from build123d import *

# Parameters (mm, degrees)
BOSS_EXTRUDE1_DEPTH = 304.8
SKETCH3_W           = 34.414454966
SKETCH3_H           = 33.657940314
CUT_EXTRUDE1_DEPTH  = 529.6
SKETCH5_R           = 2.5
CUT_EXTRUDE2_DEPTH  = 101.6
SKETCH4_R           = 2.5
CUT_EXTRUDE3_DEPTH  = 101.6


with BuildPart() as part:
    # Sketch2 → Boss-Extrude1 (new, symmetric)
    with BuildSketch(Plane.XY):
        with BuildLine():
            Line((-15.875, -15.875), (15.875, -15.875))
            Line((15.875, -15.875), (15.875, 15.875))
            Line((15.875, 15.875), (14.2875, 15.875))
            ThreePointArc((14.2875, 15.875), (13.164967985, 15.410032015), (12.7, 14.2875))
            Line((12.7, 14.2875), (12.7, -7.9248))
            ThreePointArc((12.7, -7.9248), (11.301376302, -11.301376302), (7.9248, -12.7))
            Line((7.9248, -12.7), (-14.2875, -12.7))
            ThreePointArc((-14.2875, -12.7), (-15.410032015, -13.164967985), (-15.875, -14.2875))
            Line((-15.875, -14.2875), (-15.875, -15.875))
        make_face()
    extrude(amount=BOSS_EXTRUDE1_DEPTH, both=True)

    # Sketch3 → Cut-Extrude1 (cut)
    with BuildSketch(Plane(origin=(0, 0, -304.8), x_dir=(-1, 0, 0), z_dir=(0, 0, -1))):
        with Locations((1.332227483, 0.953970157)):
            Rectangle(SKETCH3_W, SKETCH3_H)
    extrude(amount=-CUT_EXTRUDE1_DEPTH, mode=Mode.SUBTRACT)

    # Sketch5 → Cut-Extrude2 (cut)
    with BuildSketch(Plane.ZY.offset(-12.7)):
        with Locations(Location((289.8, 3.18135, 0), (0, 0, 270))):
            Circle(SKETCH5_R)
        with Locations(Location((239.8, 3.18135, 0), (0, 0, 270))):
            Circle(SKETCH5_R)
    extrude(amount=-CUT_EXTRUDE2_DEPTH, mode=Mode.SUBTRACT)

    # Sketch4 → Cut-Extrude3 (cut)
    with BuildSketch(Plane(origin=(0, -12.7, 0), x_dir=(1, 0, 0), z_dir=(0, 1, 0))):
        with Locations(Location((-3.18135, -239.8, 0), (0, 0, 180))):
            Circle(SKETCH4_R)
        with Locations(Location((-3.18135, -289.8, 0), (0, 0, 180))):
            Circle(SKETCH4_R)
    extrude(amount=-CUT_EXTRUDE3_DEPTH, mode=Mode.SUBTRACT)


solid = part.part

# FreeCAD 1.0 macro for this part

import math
import FreeCAD as App
import Part
import Sketcher
from FreeCAD import Vector
Q = App.Units.Quantity

doc = App.newDocument("Part")
body = doc.addObject("PartDesign::Body", "Body")

# Sketch on XY plane
sketch1 = body.newObject("Sketcher::SketchObject", "Sketch")
sketch1.AttachmentSupport = (doc.getObject("XY_Plane"), [""])
sketch1.MapMode = "FlatFace"
sketch1.addGeometry([
    Part.LineSegment(Vector(-15.9, -15.9, 0), Vector(15.9, -15.9, 0)),  # 0
    Part.LineSegment(Vector(15.9, -15.9, 0), Vector(15.9, 15.9, 0)),  # 1
    Part.LineSegment(Vector(15.9, 15.9, 0), Vector(14.3, 15.9, 0)),  # 2
    Part.ArcOfCircle(Part.Circle(Vector(14.3, 14.3, 0), Vector(0, 0, 1), 1.6), math.radians(90), math.radians(180)),  # 3
    Part.LineSegment(Vector(12.7, 14.3, 0), Vector(12.7, -7.9, 0)),  # 4
    Part.ArcOfCircle(Part.Circle(Vector(7.9, -7.9, 0), Vector(0, 0, 1), 4.8), math.radians(-90), math.radians(0)),  # 5
    Part.LineSegment(Vector(7.9, -12.7, 0), Vector(-14.3, -12.7, 0)),  # 6
    Part.ArcOfCircle(Part.Circle(Vector(-14.3, -14.3, 0), Vector(0, 0, 1), 1.6), math.radians(90), math.radians(180)),  # 7
    Part.LineSegment(Vector(-15.9, -14.3, 0), Vector(-15.9, -15.9, 0)),  # 8
], False)
sketch1.addConstraint([
    Sketcher.Constraint("Coincident", 0, 2, 1, 1),
    Sketcher.Constraint("Coincident", 1, 2, 2, 1),
    Sketcher.Constraint("Tangent", 2, 2, 3, 1),
    Sketcher.Constraint("Tangent", 3, 2, 4, 1),
    Sketcher.Constraint("Tangent", 4, 2, 5, 2),
    Sketcher.Constraint("Tangent", 5, 1, 6, 1),
    Sketcher.Constraint("Tangent", 6, 2, 7, 1),
    Sketcher.Constraint("Tangent", 7, 2, 8, 1),
    Sketcher.Constraint("Coincident", 8, 2, 0, 1),
    Sketcher.Constraint("Horizontal", 0),
    Sketcher.Constraint("Vertical", 1),
    Sketcher.Constraint("Horizontal", 2),
    Sketcher.Constraint("Vertical", 4),
    Sketcher.Constraint("Horizontal", 6),
    Sketcher.Constraint("Vertical", 8),
    Sketcher.Constraint("Equal", 3, 7),
    Sketcher.Constraint("Symmetric", 3, 3, 7, 3, -1, 1),
    Sketcher.Constraint("Symmetric", 1, 2, 8, 2, -1, 1),
    Sketcher.Constraint("Equal", 0, 1),
    Sketcher.Constraint("Radius", 3, Q("0.0625 in")),
    Sketcher.Constraint("Radius", 5, Q("0.188 in")),
    Sketcher.Constraint("DistanceX", 0, 1, 0, 2, Q("1.25 in")),
])
pad1 = body.newObject("PartDesign::Pad", "Pad")
pad1.Profile = sketch1
pad1.Length = Q("24 in")
pad1.Midplane = True

# Sketch on XY plane
sketch2 = body.newObject("Sketcher::SketchObject", "Sketch001")
sketch2.AttachmentSupport = (doc.getObject("XY_Plane"), [""])
sketch2.MapMode = "FlatFace"
sketch2.AttachmentOffset = App.Placement(Vector(0, 0, -12 * 25.4), App.Rotation())
sketch2.addGeometry([
    Part.LineSegment(Vector(16, 18, 0), Vector(16, -16, 0)),
    Part.LineSegment(Vector(16, -16, 0), Vector(-19, -16, 0)),
    Part.LineSegment(Vector(-19, -16, 0), Vector(-19, 18, 0)),
    Part.LineSegment(Vector(-19, 18, 0), Vector(16, 18, 0)),
], False)
sketch2.addConstraint([
    Sketcher.Constraint("Coincident", 0, 2, 1, 1),
    Sketcher.Constraint("Coincident", 1, 2, 2, 1),
    Sketcher.Constraint("Coincident", 2, 2, 3, 1),
    Sketcher.Constraint("Coincident", 3, 2, 0, 1),
    Sketcher.Constraint("Vertical", 0),
    Sketcher.Constraint("Horizontal", 1),
    Sketcher.Constraint("Vertical", 2),
    Sketcher.Constraint("Horizontal", 3),
    Sketcher.Constraint("DistanceX", 1, 2, 1, 1, Q("1.3548998 in")),
    Sketcher.Constraint("DistanceX", -1, 1, 0, 2, Q("0.625 in")),
    Sketcher.Constraint("DistanceY", 0, 2, -1, 1, Q("0.625 in")),
    Sketcher.Constraint("DistanceY", 0, 2, 0, 1, 33.65794),
])
pocket1 = body.newObject("PartDesign::Pocket", "Pocket")
pocket1.Profile = sketch2
pocket1.Length = 529.6
pocket1.Reversed = True

# Sketch on YZ plane
sketch3 = body.newObject("Sketcher::SketchObject", "Sketch002")
sketch3.AttachmentSupport = (doc.getObject("YZ_Plane"), [""])
sketch3.MapMode = "FlatFace"
sketch3.AttachmentOffset = App.Placement(Vector(0, 0, 0.5 * 25.4), App.Rotation())
sketch3.addGeometry([
    Part.Circle(Vector(3.2, 289.8, 0), Vector(0, 0, 1), 2.5),
    Part.Circle(Vector(3.2, 239.8, 0), Vector(0, 0, 1), 2.5),
], False)
sketch3.addConstraint([
    Sketcher.Constraint("Equal", 0, 1),
    Sketcher.Constraint("Vertical", 0, 3, 1, 3),
    Sketcher.Constraint("Diameter", 0, 5.0),
    Sketcher.Constraint("DistanceY", -1, 1, 0, 3, 289.8),
    Sketcher.Constraint("DistanceY", -1, 1, 1, 3, 239.8),
    Sketcher.Constraint("DistanceX", -1, 1, 0, 3, 3.18135),
])
pocket2 = body.newObject("PartDesign::Pocket", "Pocket001")
pocket2.Profile = sketch3
pocket2.Length = Q("4 in")
pocket2.Reversed = True

# Sketch on XZ plane
sketch4 = body.newObject("Sketcher::SketchObject", "Sketch003")
sketch4.AttachmentSupport = (doc.getObject("XZ_Plane"), [""])
sketch4.MapMode = "FlatFace"
sketch4.AttachmentOffset = App.Placement(Vector(0, 0, 0.5 * 25.4), App.Rotation())
sketch4.addGeometry([
    Part.Circle(Vector(-3.2, 239.8, 0), Vector(0, 0, 1), 2.5),
    Part.Circle(Vector(-3.2, 289.8, 0), Vector(0, 0, 1), 2.5),
], False)
sketch4.addConstraint([
    Sketcher.Constraint("Equal", 0, 1),
    Sketcher.Constraint("Vertical", 0, 3, 1, 3),
    Sketcher.Constraint("Diameter", 0, 5.0),
    Sketcher.Constraint("DistanceY", -1, 1, 0, 3, 239.8),
    Sketcher.Constraint("DistanceY", -1, 1, 1, 3, 289.8),
    Sketcher.Constraint("DistanceX", 0, 3, -1, 1, 3.18135),
])
pocket3 = body.newObject("PartDesign::Pocket", "Pocket002")
pocket3.Profile = sketch4
pocket3.Length = Q("4 in")
pocket3.Reversed = True

doc.recompute()
